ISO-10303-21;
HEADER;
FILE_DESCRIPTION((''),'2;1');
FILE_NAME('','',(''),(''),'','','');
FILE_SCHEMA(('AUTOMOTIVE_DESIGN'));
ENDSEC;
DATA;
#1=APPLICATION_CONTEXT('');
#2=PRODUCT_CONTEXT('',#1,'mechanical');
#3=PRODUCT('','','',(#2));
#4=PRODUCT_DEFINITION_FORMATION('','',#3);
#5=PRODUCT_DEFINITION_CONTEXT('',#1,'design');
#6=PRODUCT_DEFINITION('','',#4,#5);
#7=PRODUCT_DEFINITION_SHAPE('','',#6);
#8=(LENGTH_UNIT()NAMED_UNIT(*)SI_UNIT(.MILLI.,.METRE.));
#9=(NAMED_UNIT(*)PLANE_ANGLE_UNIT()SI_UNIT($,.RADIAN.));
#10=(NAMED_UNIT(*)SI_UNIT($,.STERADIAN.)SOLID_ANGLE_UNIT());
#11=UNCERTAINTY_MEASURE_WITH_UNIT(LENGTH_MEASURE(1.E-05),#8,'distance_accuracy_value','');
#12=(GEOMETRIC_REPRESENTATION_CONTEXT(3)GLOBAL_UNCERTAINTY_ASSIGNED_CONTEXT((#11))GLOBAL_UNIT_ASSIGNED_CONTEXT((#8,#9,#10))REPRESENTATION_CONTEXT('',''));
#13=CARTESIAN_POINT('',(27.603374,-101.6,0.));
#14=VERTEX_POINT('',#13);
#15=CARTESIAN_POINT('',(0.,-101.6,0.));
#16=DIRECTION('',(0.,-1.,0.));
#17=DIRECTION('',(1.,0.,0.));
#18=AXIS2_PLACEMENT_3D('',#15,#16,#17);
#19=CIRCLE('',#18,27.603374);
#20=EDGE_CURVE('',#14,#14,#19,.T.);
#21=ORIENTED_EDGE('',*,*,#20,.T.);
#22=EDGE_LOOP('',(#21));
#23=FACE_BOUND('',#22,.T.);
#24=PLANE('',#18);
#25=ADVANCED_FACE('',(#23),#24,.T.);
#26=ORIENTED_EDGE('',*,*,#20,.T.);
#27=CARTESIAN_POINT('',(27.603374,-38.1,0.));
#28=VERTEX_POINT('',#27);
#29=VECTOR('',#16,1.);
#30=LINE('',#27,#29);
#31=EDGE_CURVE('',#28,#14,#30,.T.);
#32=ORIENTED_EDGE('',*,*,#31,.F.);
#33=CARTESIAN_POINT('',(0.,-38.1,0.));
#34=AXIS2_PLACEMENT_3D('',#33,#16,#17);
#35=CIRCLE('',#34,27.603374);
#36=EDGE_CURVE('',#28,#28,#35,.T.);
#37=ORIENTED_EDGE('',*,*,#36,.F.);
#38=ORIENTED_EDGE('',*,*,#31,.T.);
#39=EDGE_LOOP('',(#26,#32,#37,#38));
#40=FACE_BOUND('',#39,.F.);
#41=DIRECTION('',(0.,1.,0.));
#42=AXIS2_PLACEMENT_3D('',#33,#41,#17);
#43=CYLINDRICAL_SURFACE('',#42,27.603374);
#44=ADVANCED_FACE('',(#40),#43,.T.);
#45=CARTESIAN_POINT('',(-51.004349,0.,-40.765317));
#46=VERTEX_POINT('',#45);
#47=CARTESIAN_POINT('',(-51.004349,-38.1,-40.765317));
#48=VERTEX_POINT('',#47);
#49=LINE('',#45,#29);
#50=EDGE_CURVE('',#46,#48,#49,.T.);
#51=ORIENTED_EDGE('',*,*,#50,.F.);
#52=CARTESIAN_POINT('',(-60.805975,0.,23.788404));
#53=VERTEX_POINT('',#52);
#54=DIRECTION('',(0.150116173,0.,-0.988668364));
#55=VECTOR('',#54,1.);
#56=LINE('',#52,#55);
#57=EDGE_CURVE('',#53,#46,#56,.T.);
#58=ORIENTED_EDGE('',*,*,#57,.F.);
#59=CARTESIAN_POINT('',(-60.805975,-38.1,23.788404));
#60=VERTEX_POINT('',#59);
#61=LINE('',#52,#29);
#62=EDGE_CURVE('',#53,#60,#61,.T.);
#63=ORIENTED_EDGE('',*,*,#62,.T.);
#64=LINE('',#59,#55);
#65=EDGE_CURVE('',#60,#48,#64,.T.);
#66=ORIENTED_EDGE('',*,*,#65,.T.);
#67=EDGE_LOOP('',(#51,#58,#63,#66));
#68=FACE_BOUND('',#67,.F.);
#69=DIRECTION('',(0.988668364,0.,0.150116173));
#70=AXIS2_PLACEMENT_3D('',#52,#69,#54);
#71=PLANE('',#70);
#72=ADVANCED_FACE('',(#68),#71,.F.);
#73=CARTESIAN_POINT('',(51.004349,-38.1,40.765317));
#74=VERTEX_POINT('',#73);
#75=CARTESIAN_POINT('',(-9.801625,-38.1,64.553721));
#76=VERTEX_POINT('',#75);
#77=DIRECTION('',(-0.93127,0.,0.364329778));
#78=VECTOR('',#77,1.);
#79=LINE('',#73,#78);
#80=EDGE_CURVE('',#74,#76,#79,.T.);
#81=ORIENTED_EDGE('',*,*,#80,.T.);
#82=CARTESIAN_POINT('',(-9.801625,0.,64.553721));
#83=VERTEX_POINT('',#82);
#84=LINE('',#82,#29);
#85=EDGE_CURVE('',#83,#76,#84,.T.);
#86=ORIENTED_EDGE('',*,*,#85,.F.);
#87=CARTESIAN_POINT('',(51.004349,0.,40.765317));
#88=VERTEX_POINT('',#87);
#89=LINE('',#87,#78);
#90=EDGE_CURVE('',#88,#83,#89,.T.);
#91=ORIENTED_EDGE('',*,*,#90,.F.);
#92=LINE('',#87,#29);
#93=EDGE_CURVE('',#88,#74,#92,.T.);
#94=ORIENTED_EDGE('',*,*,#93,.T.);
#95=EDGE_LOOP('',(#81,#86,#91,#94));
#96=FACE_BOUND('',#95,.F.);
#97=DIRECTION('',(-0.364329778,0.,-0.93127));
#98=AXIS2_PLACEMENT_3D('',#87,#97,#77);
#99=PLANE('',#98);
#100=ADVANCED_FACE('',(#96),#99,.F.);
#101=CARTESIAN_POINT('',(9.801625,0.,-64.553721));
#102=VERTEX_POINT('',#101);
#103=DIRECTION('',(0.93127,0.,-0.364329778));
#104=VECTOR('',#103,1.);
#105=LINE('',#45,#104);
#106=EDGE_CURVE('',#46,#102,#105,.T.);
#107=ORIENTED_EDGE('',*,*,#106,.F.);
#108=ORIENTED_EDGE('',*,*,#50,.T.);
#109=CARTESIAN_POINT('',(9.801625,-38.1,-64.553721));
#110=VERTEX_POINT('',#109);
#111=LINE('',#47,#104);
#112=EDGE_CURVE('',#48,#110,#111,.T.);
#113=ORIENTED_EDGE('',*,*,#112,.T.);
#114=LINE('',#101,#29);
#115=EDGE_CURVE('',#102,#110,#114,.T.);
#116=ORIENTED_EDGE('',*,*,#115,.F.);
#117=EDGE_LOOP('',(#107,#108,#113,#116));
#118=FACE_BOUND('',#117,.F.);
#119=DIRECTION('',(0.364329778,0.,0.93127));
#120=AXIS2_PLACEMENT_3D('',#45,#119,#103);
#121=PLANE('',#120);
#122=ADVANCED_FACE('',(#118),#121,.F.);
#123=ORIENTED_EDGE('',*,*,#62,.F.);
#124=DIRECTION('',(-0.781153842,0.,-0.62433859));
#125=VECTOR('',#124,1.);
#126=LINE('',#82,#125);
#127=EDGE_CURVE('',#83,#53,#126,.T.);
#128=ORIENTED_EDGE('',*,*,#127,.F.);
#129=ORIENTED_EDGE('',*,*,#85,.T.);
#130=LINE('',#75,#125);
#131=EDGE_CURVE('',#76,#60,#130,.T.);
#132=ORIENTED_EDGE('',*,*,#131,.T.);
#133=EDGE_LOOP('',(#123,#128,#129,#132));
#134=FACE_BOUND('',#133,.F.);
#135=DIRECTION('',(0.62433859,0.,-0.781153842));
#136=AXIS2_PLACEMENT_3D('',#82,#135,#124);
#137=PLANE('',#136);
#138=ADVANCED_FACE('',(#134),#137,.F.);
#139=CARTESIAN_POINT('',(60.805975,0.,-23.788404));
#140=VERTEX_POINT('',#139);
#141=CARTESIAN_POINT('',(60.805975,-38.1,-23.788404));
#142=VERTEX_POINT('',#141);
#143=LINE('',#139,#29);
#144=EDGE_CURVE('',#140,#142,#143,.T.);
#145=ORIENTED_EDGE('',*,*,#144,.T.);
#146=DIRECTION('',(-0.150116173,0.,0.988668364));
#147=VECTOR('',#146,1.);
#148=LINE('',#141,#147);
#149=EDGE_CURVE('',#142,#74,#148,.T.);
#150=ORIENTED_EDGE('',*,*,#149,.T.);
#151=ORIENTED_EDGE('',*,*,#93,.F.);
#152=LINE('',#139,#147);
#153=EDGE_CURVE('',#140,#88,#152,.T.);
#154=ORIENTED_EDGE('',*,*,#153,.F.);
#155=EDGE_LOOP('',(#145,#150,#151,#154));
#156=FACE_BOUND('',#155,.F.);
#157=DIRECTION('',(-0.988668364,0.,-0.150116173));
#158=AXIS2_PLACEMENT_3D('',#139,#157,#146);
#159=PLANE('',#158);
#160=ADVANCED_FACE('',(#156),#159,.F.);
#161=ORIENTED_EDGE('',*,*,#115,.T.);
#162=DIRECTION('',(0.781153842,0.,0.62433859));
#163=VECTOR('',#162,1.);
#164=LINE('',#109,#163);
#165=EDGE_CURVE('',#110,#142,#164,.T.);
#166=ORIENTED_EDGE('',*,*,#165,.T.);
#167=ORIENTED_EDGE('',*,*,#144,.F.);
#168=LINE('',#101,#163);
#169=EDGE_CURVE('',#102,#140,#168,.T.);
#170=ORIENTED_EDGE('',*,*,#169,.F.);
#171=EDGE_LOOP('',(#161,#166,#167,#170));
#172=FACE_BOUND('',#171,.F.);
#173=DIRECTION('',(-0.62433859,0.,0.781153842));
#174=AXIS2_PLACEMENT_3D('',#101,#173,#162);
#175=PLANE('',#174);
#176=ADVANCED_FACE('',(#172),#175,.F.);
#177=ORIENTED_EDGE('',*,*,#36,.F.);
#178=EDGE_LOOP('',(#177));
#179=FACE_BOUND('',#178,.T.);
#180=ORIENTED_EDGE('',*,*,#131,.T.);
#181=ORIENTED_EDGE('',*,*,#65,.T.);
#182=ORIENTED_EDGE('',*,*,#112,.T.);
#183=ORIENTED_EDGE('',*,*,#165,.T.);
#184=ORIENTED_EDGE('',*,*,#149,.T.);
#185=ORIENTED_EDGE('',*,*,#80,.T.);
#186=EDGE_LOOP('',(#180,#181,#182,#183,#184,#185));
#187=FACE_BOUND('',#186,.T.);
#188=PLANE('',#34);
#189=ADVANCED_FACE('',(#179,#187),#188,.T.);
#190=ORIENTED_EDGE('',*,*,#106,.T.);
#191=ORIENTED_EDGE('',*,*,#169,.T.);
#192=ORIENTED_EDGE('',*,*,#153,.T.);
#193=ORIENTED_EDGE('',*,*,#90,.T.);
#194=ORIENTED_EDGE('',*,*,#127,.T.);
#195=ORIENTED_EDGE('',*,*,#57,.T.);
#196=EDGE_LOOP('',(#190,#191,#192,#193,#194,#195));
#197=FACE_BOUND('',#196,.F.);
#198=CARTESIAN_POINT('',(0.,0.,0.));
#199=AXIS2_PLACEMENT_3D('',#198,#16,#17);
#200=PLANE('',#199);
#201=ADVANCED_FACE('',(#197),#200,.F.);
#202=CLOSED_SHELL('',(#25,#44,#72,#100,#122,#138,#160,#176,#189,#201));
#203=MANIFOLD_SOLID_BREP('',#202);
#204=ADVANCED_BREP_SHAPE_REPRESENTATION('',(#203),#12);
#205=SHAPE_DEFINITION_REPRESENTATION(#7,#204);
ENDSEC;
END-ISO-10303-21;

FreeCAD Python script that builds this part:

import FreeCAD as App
import Part
import Sketcher
Q = App.Units.Quantity


def add_polygon(sketch, points):
    """Adds a closed chain of lines whose ends are joined by coincident constraints."""
    first, n = sketch.GeometryCount, len(points)
    for a, b in zip(points, points[1:] + points[:1]):
        sketch.addGeometry(Part.LineSegment(App.Vector(*a, 0), App.Vector(*b, 0)), False)
    for i in range(n):
        sketch.addConstraint(Sketcher.Constraint("Coincident", first + i, 2, first + (i + 1) % n, 1))

doc = App.newDocument("Part")
body = doc.addObject("PartDesign::Body", "Body")

# Sketch on XZ plane
sketch1 = body.newObject("Sketcher::SketchObject", "Sketch")
sketch1.AttachmentSupport = (doc.getObject("XZ_Plane"), [""])
sketch1.MapMode = "FlatFace"
add_polygon(sketch1, [(51, 41), (-10, 65), (-61, 24), (-51, -41), (10, -65), (61, -24)])  # lines 0-5
sketch1.addConstraint([
    Sketcher.Constraint("Symmetric", 0, 2, 3, 2, -1, 1),
    Sketcher.Constraint("Symmetric", 1, 2, 4, 2, -1, 1),
    Sketcher.Constraint("Symmetric", 2, 2, 5, 2, -1, 1),
    Sketcher.Constraint("Equal", 0, 1),
    Sketcher.Constraint("Equal", 1, 2),
    Sketcher.Constraint("DistanceX", 1, 2, 3, 2, Q("70.6076 mm")),
    Sketcher.Constraint("DistanceY", -1, 1, 0, 2, Q("64.553721 mm")),
    Sketcher.Constraint("DistanceX", 2, 2, -1, 1, Q("51.004349 mm")),
    Sketcher.Constraint("DistanceX", 1, 2, 0, 2, Q("51.00435 mm")),
])
pad1 = body.newObject("PartDesign::Pad", "Pad")
pad1.Profile = sketch1
pad1.Length = Q("1.5 in")

# Sketch on XZ plane
sketch2 = body.newObject("Sketcher::SketchObject", "Sketch001")
sketch2.AttachmentSupport = (doc.getObject("XZ_Plane"), [""])
sketch2.MapMode = "FlatFace"
sketch2.AttachmentOffset = App.Placement(App.Vector(0, 0, 1.5 * 25.4), App.Rotation())
sketch2.addGeometry(Part.Circle(App.Vector(0, 0, 0), App.Vector(0, 0, 1), 28), False)
sketch2.addConstraint([
    Sketcher.Constraint("Coincident", 0, 3, -1, 1),
    Sketcher.Constraint("Diameter", 0, Q("55.206748 mm")),
])
pad2 = body.newObject("PartDesign::Pad", "Pad001")
pad2.Profile = sketch2
pad2.Length = Q("2.5 in")

doc.recompute()
